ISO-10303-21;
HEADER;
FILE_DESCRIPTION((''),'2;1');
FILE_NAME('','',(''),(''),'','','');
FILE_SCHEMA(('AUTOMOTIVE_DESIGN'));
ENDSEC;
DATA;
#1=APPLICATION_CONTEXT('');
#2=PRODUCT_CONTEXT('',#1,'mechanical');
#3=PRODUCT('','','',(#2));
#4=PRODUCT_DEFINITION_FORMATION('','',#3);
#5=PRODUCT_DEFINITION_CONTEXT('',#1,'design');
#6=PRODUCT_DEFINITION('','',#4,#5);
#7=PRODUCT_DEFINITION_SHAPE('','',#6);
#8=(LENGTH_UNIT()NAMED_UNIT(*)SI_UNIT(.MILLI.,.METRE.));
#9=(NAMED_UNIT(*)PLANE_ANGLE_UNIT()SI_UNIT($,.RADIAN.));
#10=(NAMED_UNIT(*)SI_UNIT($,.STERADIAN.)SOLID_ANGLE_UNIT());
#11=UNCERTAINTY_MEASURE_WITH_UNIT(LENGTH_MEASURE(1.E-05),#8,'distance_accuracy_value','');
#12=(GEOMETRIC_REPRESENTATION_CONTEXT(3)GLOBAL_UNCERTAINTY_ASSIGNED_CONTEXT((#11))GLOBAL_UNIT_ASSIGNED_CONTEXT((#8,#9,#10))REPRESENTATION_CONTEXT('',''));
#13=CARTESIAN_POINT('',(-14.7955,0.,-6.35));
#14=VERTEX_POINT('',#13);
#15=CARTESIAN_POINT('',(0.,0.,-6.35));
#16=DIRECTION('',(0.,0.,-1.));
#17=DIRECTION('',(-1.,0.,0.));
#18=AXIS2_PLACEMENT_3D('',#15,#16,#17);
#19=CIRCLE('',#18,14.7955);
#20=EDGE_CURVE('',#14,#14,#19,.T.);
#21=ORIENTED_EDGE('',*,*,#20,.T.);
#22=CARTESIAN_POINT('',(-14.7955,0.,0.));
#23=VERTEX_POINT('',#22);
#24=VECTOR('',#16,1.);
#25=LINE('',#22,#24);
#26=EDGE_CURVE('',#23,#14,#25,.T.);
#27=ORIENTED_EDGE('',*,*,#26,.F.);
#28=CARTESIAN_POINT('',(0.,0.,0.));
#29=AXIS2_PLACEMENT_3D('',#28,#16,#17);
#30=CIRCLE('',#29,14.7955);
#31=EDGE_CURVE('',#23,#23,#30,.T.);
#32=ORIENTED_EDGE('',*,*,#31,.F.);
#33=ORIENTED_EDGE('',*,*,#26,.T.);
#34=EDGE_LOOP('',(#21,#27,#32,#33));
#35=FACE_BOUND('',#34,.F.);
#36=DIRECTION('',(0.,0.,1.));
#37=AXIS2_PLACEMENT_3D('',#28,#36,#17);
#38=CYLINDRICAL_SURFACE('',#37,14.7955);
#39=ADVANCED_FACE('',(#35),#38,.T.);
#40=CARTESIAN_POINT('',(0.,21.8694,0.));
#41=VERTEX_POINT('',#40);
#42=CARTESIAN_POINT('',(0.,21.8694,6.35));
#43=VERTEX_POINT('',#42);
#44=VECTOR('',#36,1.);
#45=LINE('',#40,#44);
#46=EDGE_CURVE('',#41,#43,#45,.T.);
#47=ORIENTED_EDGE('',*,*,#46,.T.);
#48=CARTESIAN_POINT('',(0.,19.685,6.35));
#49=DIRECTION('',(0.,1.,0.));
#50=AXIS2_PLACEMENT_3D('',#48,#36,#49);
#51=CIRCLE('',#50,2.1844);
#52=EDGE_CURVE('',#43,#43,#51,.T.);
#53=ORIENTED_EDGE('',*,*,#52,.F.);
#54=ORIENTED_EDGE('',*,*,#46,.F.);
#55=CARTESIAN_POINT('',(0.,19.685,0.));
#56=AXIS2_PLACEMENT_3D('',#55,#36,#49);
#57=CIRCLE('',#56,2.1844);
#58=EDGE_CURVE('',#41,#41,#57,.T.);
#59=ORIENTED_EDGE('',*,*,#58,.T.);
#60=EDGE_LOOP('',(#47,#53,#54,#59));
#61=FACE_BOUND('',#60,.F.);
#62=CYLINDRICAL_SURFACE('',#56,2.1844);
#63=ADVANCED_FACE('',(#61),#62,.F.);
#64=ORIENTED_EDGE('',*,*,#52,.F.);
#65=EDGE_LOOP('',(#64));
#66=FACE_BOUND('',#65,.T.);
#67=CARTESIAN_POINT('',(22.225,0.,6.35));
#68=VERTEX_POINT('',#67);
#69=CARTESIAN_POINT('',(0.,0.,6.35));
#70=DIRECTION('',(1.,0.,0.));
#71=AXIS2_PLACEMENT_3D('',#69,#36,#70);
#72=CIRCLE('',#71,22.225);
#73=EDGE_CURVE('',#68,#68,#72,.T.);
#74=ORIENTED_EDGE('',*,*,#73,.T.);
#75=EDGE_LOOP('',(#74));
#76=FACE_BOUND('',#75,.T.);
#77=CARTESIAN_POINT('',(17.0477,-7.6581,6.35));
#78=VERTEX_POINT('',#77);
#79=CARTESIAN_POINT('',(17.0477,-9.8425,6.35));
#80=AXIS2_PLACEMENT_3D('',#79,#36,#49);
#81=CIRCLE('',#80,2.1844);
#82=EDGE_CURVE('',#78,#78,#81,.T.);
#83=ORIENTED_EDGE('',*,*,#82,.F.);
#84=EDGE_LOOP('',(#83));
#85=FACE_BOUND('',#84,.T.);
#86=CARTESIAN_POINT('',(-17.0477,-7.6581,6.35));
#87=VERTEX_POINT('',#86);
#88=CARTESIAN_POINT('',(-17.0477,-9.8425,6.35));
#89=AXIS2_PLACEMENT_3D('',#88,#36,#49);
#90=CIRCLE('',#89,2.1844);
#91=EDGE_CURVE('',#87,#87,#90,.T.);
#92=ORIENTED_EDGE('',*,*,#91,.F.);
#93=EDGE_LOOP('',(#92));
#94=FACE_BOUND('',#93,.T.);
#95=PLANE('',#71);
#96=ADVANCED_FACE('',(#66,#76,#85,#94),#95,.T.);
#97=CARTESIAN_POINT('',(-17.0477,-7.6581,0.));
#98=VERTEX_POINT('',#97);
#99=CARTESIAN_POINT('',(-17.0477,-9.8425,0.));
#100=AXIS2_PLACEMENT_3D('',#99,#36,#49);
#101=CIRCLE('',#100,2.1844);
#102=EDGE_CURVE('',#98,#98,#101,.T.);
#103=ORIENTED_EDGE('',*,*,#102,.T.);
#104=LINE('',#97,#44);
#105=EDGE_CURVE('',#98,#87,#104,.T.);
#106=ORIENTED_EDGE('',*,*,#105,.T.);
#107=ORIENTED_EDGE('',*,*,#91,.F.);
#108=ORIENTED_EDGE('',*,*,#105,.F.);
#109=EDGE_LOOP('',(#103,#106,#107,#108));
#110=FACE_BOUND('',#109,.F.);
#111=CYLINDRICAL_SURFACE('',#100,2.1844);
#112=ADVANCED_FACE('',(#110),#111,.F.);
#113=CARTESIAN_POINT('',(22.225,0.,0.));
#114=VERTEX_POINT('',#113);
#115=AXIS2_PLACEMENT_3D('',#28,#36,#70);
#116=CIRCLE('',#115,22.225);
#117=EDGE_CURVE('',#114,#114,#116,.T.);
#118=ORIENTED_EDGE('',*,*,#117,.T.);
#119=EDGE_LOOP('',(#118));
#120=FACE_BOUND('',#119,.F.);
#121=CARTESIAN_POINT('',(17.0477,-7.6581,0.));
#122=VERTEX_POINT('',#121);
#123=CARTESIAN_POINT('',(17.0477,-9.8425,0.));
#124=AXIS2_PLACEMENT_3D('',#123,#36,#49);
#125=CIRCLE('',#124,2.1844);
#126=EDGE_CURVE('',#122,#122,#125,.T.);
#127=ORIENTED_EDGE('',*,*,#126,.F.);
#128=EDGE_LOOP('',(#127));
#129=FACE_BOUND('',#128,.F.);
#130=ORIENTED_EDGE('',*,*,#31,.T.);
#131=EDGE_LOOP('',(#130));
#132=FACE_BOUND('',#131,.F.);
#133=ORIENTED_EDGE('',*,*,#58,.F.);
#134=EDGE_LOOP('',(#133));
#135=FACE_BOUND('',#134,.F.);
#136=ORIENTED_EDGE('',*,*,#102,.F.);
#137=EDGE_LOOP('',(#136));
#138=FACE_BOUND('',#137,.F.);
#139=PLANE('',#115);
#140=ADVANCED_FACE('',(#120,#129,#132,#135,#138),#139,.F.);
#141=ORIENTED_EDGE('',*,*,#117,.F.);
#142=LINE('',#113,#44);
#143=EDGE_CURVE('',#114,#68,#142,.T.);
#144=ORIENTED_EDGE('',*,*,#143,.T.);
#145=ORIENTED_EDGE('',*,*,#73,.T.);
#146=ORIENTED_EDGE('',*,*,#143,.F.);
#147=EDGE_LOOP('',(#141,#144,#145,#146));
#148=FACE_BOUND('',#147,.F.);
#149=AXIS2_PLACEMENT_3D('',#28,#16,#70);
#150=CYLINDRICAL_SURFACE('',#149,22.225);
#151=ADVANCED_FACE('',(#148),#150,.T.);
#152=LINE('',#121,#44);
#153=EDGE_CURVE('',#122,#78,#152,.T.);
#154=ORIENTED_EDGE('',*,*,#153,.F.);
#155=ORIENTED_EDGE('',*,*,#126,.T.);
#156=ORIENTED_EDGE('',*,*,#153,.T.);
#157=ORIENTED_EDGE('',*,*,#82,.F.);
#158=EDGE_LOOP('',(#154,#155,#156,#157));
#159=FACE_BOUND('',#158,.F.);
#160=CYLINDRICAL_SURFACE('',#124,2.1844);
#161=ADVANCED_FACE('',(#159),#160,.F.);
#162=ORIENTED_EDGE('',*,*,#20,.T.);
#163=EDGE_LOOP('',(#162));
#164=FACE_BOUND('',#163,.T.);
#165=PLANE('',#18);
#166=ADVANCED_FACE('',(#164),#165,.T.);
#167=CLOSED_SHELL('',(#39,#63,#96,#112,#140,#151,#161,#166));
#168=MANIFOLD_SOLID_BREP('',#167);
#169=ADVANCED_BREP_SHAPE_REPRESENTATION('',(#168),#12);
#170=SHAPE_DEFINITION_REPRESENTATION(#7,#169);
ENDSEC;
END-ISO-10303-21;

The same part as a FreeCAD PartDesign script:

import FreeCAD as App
import Part
import Sketcher

V = App.Vector
Q = App.Units.Quantity

doc = App.newDocument("Part")
body = doc.addObject("PartDesign::Body", "Body")

# Sketch on XY plane
sketch1 = body.newObject("Sketcher::SketchObject", "Sketch")
sketch1.AttachmentSupport = (doc.getObject("XY_Plane"), [""])
sketch1.MapMode = "FlatFace"
sketch1.addGeometry(Part.Circle(V(0, 0, 0), V(0, 0, 1), 22.225), False)
sketch1.addConstraint(Sketcher.Constraint("Coincident", 0, 3, -1, 1))
sketch1.addConstraint(Sketcher.Constraint("Diameter", 0, Q("1.75 in")))
pad1 = body.newObject("PartDesign::Pad", "Pad")
pad1.Profile = sketch1
pad1.Length = Q("0.25 in")

# Sketch on XY plane
sketch2 = body.newObject("Sketcher::SketchObject", "Sketch001")
sketch2.AttachmentSupport = (doc.getObject("XY_Plane"), [""])
sketch2.MapMode = "FlatFace"
sketch2.addGeometry(Part.Circle(V(0, 0, 0), V(0, 0, 1), 14.7955), False)
sketch2.addConstraint(Sketcher.Constraint("Coincident", 0, 3, -1, 1))
sketch2.addConstraint(Sketcher.Constraint("Diameter", 0, Q("1.165 in")))
pad2 = body.newObject("PartDesign::Pad", "Pad001")
pad2.Profile = sketch2
pad2.Length = Q("0.25 in")
pad2.Reversed = True

# Sketch on XY plane
sketch3 = body.newObject("Sketcher::SketchObject", "Sketch002")
sketch3.AttachmentSupport = (doc.getObject("XY_Plane"), [""])
sketch3.MapMode = "FlatFace"
sketch3.addGeometry(Part.Circle(V(0, 19.685, 0), V(0, 0, 1), 2.1844), False)
sketch3.addGeometry(Part.Circle(V(-17.0477, -9.8425, 0), V(0, 0, 1), 2.1844), False)
sketch3.addGeometry(Part.Circle(V(17.0477, -9.8425, 0), V(0, 0, 1), 2.1844), False)
sketch3.addConstraint(Sketcher.Constraint("Equal", 0, 1))
sketch3.addConstraint(Sketcher.Constraint("Equal", 1, 2))
sketch3.addConstraint(Sketcher.Constraint("Symmetric", 1, 3, 2, 3, -2))
sketch3.addConstraint(Sketcher.Constraint("PointOnObject", 0, 3, -2))
sketch3.addConstraint(Sketcher.Constraint("Diameter", 0, Q("0.172 in")))
sketch3.addConstraint(Sketcher.Constraint("DistanceY", -1, 1, 0, 3, Q("0.775 in")))
sketch3.addConstraint(Sketcher.Constraint("DistanceY", 1, 3, -1, 1, Q("0.3875 in")))
sketch3.addConstraint(Sketcher.Constraint("DistanceX", 1, 3, -1, 1, Q("17.0477 mm")))
doc.recompute()
hole = body.newObject("PartDesign::Hole", "Hole")
hole.Profile = sketch3
hole.ThreadType = "None"
hole.Diameter = Q("0.172 in")
hole.DepthType = "ThroughAll"
hole.Reversed = True

doc.recompute()
